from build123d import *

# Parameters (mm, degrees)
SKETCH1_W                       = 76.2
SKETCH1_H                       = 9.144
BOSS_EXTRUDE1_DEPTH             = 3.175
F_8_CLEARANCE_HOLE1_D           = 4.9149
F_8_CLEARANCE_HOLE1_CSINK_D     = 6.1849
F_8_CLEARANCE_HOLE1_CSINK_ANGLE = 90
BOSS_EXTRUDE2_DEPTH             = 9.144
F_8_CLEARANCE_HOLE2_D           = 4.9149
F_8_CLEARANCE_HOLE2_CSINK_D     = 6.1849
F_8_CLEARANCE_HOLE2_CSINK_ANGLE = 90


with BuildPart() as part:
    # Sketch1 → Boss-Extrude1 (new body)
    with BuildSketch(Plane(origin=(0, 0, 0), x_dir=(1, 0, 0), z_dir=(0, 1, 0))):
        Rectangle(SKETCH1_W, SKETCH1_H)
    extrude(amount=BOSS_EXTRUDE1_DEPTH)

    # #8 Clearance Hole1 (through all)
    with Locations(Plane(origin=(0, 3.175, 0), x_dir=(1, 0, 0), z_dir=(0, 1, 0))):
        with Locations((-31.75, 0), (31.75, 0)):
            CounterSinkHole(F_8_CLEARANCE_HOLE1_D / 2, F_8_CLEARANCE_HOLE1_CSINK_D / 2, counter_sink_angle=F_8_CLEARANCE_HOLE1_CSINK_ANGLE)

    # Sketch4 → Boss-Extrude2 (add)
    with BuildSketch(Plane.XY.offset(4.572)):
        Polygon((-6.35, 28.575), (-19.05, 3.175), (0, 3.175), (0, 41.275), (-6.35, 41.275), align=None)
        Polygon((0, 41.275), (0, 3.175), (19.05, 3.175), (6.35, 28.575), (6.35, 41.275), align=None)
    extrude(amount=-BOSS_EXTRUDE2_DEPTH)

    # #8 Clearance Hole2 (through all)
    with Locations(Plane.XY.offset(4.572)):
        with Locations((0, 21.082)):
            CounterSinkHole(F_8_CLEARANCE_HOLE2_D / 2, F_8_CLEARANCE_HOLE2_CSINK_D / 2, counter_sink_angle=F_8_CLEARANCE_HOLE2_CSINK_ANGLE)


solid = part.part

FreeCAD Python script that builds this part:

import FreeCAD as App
import Part
import Sketcher
Q = App.Units.Quantity


def add_polygon(sketch, points):
    """Adds a closed chain of lines whose ends are joined by coincident constraints."""
    first, n = sketch.GeometryCount, len(points)
    for a, b in zip(points, points[1:] + points[:1]):
        sketch.addGeometry(Part.LineSegment(App.Vector(*a, 0), App.Vector(*b, 0)), False)
    for i in range(n):
        sketch.addConstraint(Sketcher.Constraint("Coincident", first + i, 2, first + (i + 1) % n, 1))

doc = App.newDocument("Part")
body = doc.addObject("PartDesign::Body", "Body")

# Sketch on XZ plane
sketch1 = body.newObject("Sketcher::SketchObject", "Sketch")
sketch1.AttachmentSupport = (doc.getObject("XZ_Plane"), [""])
sketch1.MapMode = "FlatFace"
add_polygon(sketch1, [(-38, -5), (-38, 5), (38, 5), (38, -5)])  # lines 0-3
sketch1.addConstraint(Sketcher.Constraint("Vertical", 0))
sketch1.addConstraint(Sketcher.Constraint("Horizontal", 1))
sketch1.addConstraint(Sketcher.Constraint("Vertical", 2))
sketch1.addConstraint(Sketcher.Constraint("Horizontal", 3))
sketch1.addConstraint(Sketcher.Constraint("Symmetric", 0, 2, 2, 2, -1, 1))
sketch1.addConstraint(Sketcher.Constraint("DistanceX", 1, 1, 1, 2, Q("3 in")))
sketch1.addConstraint(Sketcher.Constraint("DistanceY", 0, 1, 0, 2, Q("0.36 in")))
pad1 = body.newObject("PartDesign::Pad", "Pad")
pad1.Profile = sketch1
pad1.Length = Q("0.125 in")
pad1.Reversed = True

# Sketch on XZ plane
sketch2 = body.newObject("Sketcher::SketchObject", "Sketch001")
sketch2.AttachmentSupport = (doc.getObject("XZ_Plane"), [""])
sketch2.MapMode = "FlatFace"
sketch2.AttachmentOffset = App.Placement(App.Vector(0, 0, -0.125 * 25.4), App.Rotation())
sketch2.addGeometry(Part.Circle(App.Vector(-31.8, 0, 0), App.Vector(0, 0, 1), 2.5), False)
sketch2.addGeometry(Part.Circle(App.Vector(31.8, 0, 0), App.Vector(0, 0, 1), 2.5), False)
sketch2.addConstraint(Sketcher.Constraint("Equal", 0, 1))
sketch2.addConstraint(Sketcher.Constraint("Symmetric", 0, 3, 1, 3, -1, 1))
sketch2.addConstraint(Sketcher.Constraint("PointOnObject", 0, 3, -1))
sketch2.addConstraint(Sketcher.Constraint("Diameter", 0, Q("0.1935 in")))
sketch2.addConstraint(Sketcher.Constraint("DistanceX", 0, 3, 1, 3, Q("2.5 in")))
doc.recompute()
hole = body.newObject("PartDesign::Hole", "Hole")
hole.Profile = sketch2
hole.ThreadType = "None"
hole.Diameter = Q("0.1935 in")
hole.DepthType = "ThroughAll"
hole.HoleCutType = "Countersink"
hole.HoleCutDiameter = Q("0.2435 in")
hole.HoleCutCountersinkAngle = 90
hole.Reversed = True

# Sketch on XY plane
sketch3 = body.newObject("Sketcher::SketchObject", "Sketch002")
sketch3.AttachmentSupport = (doc.getObject("XY_Plane"), [""])
sketch3.MapMode = "FlatFace"
sketch3.AttachmentOffset = App.Placement(App.Vector(0, 0, 0.18 * 25.4), App.Rotation())
add_polygon(sketch3, [(-6, 29), (-19, 3), (19, 3), (6, 29), (6, 41), (-6, 41)])  # lines 0-5
sketch3.addConstraint(Sketcher.Constraint("Horizontal", 1))
sketch3.addConstraint(Sketcher.Constraint("Vertical", 3))
sketch3.addConstraint(Sketcher.Constraint("Horizontal", 4))
sketch3.addConstraint(Sketcher.Constraint("Vertical", 5))
sketch3.addConstraint(Sketcher.Constraint("Symmetric", 2, 2, 5, 2, -2))
sketch3.addConstraint(Sketcher.Constraint("Equal", 4, 3))
sketch3.addConstraint(Sketcher.Constraint("Equal", 0, 2))
sketch3.addConstraint(Sketcher.Constraint("DistanceX", 1, 1, 1, 2, Q("1.5 in")))
sketch3.addConstraint(Sketcher.Constraint("DistanceX", 4, 2, 4, 1, Q("0.5 in")))
sketch3.addConstraint(Sketcher.Constraint("DistanceY", 1, 2, 2, 2, Q("1 in")))
sketch3.addConstraint(Sketcher.Constraint("DistanceY", -1, 1, 0, 2, Q("0.125 in")))
pad2 = body.newObject("PartDesign::Pad", "Pad001")
pad2.Profile = sketch3
pad2.Length = Q("0.36 in")
pad2.Reversed = True

# Sketch on XY plane
sketch4 = body.newObject("Sketcher::SketchObject", "Sketch003")
sketch4.AttachmentSupport = (doc.getObject("XY_Plane"), [""])
sketch4.MapMode = "FlatFace"
sketch4.AttachmentOffset = App.Placement(App.Vector(0, 0, 0.18 * 25.4), App.Rotation())
sketch4.addGeometry(Part.Circle(App.Vector(0, 21.1, 0), App.Vector(0, 0, 1), 2.5), False)
sketch4.addConstraint(Sketcher.Constraint("PointOnObject", 0, 3, -2))
sketch4.addConstraint(Sketcher.Constraint("Diameter", 0, Q("0.1935 in")))
sketch4.addConstraint(Sketcher.Constraint("DistanceY", -1, 1, 0, 3, Q("0.83 in")))
doc.recompute()
hole2 = body.newObject("PartDesign::Hole", "Hole001")
hole2.Profile = sketch4
hole2.ThreadType = "None"
hole2.Diameter = Q("0.1935 in")
hole2.DepthType = "ThroughAll"
hole2.HoleCutType = "Countersink"
hole2.HoleCutDiameter = Q("0.2435 in")
hole2.HoleCutCountersinkAngle = 90

doc.recompute()
